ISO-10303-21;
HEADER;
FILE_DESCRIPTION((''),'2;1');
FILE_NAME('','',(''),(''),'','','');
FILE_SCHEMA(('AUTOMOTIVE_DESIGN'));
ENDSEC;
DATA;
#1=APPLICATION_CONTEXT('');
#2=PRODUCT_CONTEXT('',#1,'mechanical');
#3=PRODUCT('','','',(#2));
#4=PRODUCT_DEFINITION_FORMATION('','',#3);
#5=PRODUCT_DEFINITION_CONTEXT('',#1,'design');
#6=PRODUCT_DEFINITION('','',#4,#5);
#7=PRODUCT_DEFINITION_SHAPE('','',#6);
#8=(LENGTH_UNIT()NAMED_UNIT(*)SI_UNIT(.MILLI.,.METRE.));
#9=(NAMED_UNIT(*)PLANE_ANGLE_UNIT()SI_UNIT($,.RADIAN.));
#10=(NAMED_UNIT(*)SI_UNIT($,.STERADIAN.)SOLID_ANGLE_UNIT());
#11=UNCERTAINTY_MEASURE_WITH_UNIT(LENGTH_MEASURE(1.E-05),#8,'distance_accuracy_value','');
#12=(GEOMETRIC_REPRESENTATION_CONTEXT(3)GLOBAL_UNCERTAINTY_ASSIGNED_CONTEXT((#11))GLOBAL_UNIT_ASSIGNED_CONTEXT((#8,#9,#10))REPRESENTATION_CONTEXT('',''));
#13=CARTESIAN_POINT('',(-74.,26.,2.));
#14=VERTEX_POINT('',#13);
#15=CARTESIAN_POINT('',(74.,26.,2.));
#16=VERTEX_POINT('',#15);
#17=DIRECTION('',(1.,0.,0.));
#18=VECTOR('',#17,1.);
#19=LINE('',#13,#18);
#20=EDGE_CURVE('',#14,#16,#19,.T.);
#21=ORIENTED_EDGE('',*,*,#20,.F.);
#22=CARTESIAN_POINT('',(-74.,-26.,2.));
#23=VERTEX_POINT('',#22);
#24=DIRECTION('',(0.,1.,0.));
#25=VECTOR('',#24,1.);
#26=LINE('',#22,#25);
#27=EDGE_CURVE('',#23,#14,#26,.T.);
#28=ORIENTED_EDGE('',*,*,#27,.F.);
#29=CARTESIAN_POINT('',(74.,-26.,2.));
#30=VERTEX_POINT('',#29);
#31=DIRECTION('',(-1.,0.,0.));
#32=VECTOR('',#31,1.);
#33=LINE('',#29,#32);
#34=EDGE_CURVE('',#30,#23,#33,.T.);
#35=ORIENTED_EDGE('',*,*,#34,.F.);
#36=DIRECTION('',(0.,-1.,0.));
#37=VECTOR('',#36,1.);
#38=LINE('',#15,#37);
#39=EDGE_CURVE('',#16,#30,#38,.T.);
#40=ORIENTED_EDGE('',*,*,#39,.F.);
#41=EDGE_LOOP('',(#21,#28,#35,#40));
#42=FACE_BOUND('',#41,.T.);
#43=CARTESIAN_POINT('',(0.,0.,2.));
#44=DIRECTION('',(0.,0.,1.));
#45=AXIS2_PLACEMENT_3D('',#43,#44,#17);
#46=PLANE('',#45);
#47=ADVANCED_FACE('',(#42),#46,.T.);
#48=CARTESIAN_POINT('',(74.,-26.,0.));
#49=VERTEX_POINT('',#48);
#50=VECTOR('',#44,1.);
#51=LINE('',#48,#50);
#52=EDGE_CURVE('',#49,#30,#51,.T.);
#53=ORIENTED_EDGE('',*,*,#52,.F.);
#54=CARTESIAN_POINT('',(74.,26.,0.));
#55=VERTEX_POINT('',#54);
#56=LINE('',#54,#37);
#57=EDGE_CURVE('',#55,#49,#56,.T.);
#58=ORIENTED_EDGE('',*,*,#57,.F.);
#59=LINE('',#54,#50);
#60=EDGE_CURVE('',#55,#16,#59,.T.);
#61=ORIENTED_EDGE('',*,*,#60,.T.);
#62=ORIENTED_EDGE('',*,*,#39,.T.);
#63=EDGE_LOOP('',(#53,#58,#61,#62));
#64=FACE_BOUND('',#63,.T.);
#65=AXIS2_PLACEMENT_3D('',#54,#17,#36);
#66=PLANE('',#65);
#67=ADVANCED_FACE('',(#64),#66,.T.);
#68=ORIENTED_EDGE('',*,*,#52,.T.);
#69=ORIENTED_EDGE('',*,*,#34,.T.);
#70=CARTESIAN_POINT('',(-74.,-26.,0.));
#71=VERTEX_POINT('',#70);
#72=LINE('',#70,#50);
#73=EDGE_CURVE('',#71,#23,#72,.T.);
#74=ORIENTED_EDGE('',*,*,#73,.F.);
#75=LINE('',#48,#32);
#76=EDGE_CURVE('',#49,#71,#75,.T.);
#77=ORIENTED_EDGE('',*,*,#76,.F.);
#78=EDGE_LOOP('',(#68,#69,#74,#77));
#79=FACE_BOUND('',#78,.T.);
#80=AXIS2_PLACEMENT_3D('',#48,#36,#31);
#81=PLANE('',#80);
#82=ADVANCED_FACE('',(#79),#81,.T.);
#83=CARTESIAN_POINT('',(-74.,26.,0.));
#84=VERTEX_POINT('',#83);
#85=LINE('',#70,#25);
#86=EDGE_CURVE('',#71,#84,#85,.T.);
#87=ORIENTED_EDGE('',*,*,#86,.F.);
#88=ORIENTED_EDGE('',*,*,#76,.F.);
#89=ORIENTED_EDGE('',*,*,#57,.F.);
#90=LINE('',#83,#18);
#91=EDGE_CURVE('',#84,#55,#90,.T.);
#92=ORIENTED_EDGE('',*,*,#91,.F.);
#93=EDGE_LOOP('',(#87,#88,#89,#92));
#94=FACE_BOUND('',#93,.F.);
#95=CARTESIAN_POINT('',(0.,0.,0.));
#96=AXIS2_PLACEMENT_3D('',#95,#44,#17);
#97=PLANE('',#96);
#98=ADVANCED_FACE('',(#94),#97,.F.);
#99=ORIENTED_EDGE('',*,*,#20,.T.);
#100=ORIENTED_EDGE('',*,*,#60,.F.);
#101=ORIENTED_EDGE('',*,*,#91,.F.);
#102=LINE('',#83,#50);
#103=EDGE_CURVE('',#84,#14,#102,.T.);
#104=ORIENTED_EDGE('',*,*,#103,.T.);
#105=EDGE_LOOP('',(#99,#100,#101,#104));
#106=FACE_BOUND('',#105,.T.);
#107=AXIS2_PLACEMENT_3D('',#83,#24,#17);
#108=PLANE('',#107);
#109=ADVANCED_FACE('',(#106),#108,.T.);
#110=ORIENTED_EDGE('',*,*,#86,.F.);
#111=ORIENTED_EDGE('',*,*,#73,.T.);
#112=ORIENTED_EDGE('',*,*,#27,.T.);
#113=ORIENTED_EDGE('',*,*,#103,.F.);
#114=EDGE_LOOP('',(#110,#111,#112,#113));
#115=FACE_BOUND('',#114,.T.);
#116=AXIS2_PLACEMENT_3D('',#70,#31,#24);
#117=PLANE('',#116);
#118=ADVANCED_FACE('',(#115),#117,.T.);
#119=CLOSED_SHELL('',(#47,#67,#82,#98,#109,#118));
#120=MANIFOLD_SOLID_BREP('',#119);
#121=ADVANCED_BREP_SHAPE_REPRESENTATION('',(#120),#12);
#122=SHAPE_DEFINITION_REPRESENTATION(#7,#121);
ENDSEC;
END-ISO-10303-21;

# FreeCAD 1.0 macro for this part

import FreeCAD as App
import Part
import Sketcher

V = App.Vector
Q = App.Units.Quantity


def add_polygon(sketch, points):
    """Adds a closed chain of lines whose ends are joined by coincident constraints."""
    first, n = sketch.GeometryCount, len(points)
    for a, b in zip(points, points[1:] + points[:1]):
        sketch.addGeometry(Part.LineSegment(App.Vector(*a, 0), App.Vector(*b, 0)), False)
    for i in range(n):
        sketch.addConstraint(Sketcher.Constraint("Coincident", first + i, 2, first + (i + 1) % n, 1))

doc = App.newDocument("Part")
body = doc.addObject("PartDesign::Body", "Body")

sketch1 = body.newObject("Sketcher::SketchObject", "Sketch")
sketch1.AttachmentSupport = (doc.getObject("XY_Plane"), [""])
sketch1.MapMode = "FlatFace"
add_polygon(sketch1, [(-74, -26), (74, -26), (74, 26), (-74, 26)])
sketch1.addConstraint([
    Sketcher.Constraint("Horizontal", 0),
    Sketcher.Constraint("Vertical", 1),
    Sketcher.Constraint("Horizontal", 2),
    Sketcher.Constraint("Vertical", 3),
    Sketcher.Constraint("Symmetric", 0, 2, 2, 2, -1, 1),
    Sketcher.Constraint("DistanceX", 0, 1, 0, 2, Q("148 mm")),
    Sketcher.Constraint("DistanceY", 1, 1, 1, 2, Q("52 mm")),
])
pad1 = body.newObject("PartDesign::Pad", "Pad")
pad1.Profile = sketch1
pad1.Length = 2

doc.recompute()
